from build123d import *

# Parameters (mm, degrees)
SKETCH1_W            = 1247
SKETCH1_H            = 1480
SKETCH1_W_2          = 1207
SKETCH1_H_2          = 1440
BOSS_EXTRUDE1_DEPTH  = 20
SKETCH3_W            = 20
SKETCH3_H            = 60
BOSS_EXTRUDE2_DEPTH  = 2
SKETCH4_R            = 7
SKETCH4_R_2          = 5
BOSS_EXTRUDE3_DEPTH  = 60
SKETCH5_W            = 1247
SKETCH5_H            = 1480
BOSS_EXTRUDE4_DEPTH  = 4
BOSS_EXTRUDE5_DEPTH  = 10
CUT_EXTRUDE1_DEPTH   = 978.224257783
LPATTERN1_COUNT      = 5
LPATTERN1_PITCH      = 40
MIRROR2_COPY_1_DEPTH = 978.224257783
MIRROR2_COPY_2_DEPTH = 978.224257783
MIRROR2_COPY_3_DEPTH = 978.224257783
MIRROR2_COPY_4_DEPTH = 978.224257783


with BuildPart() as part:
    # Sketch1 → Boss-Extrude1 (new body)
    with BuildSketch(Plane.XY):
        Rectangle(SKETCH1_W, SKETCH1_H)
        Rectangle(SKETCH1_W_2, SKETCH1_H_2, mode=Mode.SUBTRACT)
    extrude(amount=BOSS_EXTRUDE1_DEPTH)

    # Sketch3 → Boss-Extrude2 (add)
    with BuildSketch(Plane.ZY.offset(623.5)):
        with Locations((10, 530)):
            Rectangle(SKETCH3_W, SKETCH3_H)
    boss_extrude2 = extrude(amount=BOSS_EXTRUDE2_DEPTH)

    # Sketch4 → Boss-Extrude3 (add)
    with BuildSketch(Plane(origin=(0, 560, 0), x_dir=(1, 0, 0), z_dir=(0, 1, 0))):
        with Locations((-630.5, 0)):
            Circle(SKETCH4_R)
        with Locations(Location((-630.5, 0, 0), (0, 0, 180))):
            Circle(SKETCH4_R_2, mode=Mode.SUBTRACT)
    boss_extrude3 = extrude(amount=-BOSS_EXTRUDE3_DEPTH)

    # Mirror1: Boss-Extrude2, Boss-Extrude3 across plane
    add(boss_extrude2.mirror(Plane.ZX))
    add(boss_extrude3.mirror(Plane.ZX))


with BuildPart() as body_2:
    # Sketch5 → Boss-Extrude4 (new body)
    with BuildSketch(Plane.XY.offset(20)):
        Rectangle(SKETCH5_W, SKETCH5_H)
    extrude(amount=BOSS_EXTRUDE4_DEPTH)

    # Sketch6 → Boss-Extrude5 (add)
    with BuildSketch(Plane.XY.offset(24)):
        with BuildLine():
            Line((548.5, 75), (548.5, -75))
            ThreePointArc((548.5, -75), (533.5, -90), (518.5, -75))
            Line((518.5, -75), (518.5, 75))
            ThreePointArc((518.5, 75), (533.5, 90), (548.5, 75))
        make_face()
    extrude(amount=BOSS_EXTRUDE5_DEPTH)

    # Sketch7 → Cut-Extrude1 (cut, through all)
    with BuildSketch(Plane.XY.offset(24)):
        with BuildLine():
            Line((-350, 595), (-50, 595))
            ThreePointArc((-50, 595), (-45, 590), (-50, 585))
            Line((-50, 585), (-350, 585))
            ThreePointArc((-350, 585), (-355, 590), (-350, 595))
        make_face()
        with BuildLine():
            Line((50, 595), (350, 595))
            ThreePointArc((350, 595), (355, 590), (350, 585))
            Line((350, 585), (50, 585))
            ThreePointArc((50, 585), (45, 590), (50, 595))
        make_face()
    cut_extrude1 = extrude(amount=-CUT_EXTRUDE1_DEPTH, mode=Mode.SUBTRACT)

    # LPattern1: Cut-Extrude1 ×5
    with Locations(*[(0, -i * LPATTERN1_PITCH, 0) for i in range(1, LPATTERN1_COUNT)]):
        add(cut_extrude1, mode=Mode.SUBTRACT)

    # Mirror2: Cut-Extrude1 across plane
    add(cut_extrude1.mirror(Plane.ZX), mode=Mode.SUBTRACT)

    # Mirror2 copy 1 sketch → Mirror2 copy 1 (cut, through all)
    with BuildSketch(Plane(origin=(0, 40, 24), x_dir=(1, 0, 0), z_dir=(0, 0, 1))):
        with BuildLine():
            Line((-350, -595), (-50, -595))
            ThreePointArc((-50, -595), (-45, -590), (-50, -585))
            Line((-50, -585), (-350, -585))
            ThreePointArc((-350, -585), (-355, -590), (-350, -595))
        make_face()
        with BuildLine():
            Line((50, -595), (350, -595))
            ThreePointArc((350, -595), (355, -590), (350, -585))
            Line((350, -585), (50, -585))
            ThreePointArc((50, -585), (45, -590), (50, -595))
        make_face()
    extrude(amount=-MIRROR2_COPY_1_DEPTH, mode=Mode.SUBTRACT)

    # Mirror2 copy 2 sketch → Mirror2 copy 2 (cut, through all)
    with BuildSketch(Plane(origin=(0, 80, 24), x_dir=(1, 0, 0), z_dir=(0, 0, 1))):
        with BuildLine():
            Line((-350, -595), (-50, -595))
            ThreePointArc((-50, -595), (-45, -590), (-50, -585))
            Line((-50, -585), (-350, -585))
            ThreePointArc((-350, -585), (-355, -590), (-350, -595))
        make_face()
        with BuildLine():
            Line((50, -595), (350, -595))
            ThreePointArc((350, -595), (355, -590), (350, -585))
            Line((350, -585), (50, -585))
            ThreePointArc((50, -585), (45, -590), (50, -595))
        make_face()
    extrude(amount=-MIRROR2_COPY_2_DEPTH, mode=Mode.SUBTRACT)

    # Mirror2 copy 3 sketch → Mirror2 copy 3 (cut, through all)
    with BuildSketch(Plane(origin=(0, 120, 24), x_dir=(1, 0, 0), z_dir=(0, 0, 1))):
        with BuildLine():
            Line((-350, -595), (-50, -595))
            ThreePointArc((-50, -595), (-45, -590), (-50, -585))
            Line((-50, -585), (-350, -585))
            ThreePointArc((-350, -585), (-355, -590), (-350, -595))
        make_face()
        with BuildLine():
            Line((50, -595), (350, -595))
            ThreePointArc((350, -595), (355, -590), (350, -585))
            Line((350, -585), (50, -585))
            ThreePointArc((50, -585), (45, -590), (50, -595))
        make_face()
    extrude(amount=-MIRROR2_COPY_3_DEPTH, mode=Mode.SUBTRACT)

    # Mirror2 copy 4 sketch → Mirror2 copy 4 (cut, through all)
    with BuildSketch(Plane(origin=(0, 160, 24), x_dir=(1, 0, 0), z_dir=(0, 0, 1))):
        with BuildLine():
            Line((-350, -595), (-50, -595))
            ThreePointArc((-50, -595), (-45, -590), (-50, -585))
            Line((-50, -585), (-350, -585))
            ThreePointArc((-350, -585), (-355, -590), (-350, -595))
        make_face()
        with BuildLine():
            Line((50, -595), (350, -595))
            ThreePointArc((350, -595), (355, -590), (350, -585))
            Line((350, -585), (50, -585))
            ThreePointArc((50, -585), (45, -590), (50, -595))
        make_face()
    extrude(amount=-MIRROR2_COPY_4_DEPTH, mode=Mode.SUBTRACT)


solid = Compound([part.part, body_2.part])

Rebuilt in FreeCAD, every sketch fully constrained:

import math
import FreeCAD as App
import Part
import Sketcher
from FreeCAD import Vector
Q = App.Units.Quantity

doc = App.newDocument("Part")
params = doc.addObject("Spreadsheet::Sheet", "Params")
for row, (alias, value) in enumerate([
    ("sketch1_width", "1247 mm"),
    ("sketch1_width2", "1207 mm"),
    ("sketch1_height", "1480 mm"),
    ("sketch1_height2", "1440 mm"),
    ("pad1_length", "20 mm"),
    ("sketch2_width", "60 mm"),
    ("sketch2_height", "20 mm"),
    ("pad2_length", "2 mm"),
    ("sketch3_diameter", "14 mm"),
    ("sketch3_diameter2", "10 mm"),
    ("pad3_length", "60 mm"),
    ("sketch4_width", "1247 mm"),
    ("sketch4_height", "1480 mm"),
    ("pad4_length", "4 mm"),
    ("sketch5_radius", "15 mm"),
    ("sketch5_height", "150 mm"),
    ("pad5_length", "10 mm"),
    ("sketch6_radius", "5 mm"),
    ("sketch6_width", "300 mm"),
    ("linearpattern_pitch", "40 mm"),
    ("sketch7_radius", "5 mm"),
    ("sketch7_width", "300 mm"),
    ("sketch8_radius", "5 mm"),
    ("sketch8_width", "300 mm"),
    ("sketch9_radius", "5 mm"),
    ("sketch9_width", "300 mm"),
    ("sketch10_radius", "5 mm"),
    ("sketch10_width", "300 mm"),
], start=1):
    params.set(f"A{row}", alias)
    params.set(f"B{row}", "=" + value)
    params.setAlias(f"B{row}", alias)

body = doc.addObject("PartDesign::Body", "Body")

# Sketch on XY plane
sketch1 = doc.addObject("Sketcher::SketchObject", "Sketch")
body.addObject(sketch1)
sketch1.AttachmentSupport = (doc.XY_Plane, [""])
sketch1.MapMode = "FlatFace"
sketch1.addGeometry(Part.LineSegment(Vector(-623.5, 740, 0), Vector(-623.5, -740, 0)), False)
sketch1.addGeometry(Part.LineSegment(Vector(-623.5, -740, 0), Vector(623.5, -740, 0)), False)
sketch1.addGeometry(Part.LineSegment(Vector(623.5, -740, 0), Vector(623.5, 740, 0)), False)
sketch1.addGeometry(Part.LineSegment(Vector(623.5, 740, 0), Vector(-623.5, 740, 0)), False)
sketch1.addGeometry(Part.LineSegment(Vector(603.5, -720, 0), Vector(-603.5, -720, 0)), False)
sketch1.addGeometry(Part.LineSegment(Vector(-603.5, -720, 0), Vector(-603.5, 720, 0)), False)
sketch1.addGeometry(Part.LineSegment(Vector(-603.5, 720, 0), Vector(603.5, 720, 0)), False)
sketch1.addGeometry(Part.LineSegment(Vector(603.5, 720, 0), Vector(603.5, -720, 0)), False)
sketch1.addConstraint(Sketcher.Constraint("Coincident", 0, 2, 1, 1))
sketch1.addConstraint(Sketcher.Constraint("Coincident", 1, 2, 2, 1))
sketch1.addConstraint(Sketcher.Constraint("Coincident", 2, 2, 3, 1))
sketch1.addConstraint(Sketcher.Constraint("Coincident", 3, 2, 0, 1))
sketch1.addConstraint(Sketcher.Constraint("Coincident", 4, 2, 5, 1))
sketch1.addConstraint(Sketcher.Constraint("Coincident", 5, 2, 6, 1))
sketch1.addConstraint(Sketcher.Constraint("Coincident", 6, 2, 7, 1))
sketch1.addConstraint(Sketcher.Constraint("Coincident", 7, 2, 4, 1))
sketch1.addConstraint(Sketcher.Constraint("Vertical", 0))
sketch1.addConstraint(Sketcher.Constraint("Horizontal", 1))
sketch1.addConstraint(Sketcher.Constraint("Vertical", 2))
sketch1.addConstraint(Sketcher.Constraint("Horizontal", 3))
sketch1.addConstraint(Sketcher.Constraint("Horizontal", 4))
sketch1.addConstraint(Sketcher.Constraint("Vertical", 5))
sketch1.addConstraint(Sketcher.Constraint("Horizontal", 6))
sketch1.addConstraint(Sketcher.Constraint("Vertical", 7))
sketch1.addConstraint(Sketcher.Constraint("Symmetric", 0, 2, 2, 2, -1, 1))
sketch1.addConstraint(Sketcher.Constraint("Symmetric", 4, 2, 6, 2, -1, 1))
sketch1.addConstraint(Sketcher.Constraint("DistanceX", 1, 1, 1, 2, Q("1247 mm")))
sketch1.addConstraint(Sketcher.Constraint("DistanceX", 4, 2, 4, 1, Q("1207 mm")))
sketch1.addConstraint(Sketcher.Constraint("DistanceY", 0, 2, 0, 1, Q("1480 mm")))
sketch1.addConstraint(Sketcher.Constraint("DistanceY", 5, 1, 5, 2, Q("1440 mm")))
sketch1.setExpression("Constraints[18]", "Params.sketch1_width")
sketch1.setExpression("Constraints[19]", "Params.sketch1_width2")
sketch1.setExpression("Constraints[20]", "Params.sketch1_height")
sketch1.setExpression("Constraints[21]", "Params.sketch1_height2")
pad1 = doc.addObject("PartDesign::Pad", "Pad")
body.addObject(pad1)
pad1.Profile = sketch1
pad1.setExpression("Length", "Params.pad1_length")

# Sketch on YZ plane
sketch2 = doc.addObject("Sketcher::SketchObject", "Sketch001")
body.addObject(sketch2)
sketch2.AttachmentSupport = (doc.YZ_Plane, [""])
sketch2.MapMode = "FlatFace"
sketch2.AttachmentOffset = App.Placement(Vector(0, 0, -623.5), App.Rotation())
sketch2.addGeometry(Part.LineSegment(Vector(560, 0, 0), Vector(500, 0, 0)), False)
sketch2.addGeometry(Part.LineSegment(Vector(500, 0, 0), Vector(500, 20, 0)), False)
sketch2.addGeometry(Part.LineSegment(Vector(500, 20, 0), Vector(560, 20, 0)), False)
sketch2.addGeometry(Part.LineSegment(Vector(560, 20, 0), Vector(560, 0, 0)), False)
sketch2.addConstraint(Sketcher.Constraint("Coincident", 0, 2, 1, 1))
sketch2.addConstraint(Sketcher.Constraint("Coincident", 1, 2, 2, 1))
sketch2.addConstraint(Sketcher.Constraint("Coincident", 2, 2, 3, 1))
sketch2.addConstraint(Sketcher.Constraint("Coincident", 3, 2, 0, 1))
sketch2.addConstraint(Sketcher.Constraint("Horizontal", 0))
sketch2.addConstraint(Sketcher.Constraint("Vertical", 1))
sketch2.addConstraint(Sketcher.Constraint("Horizontal", 2))
sketch2.addConstraint(Sketcher.Constraint("Vertical", 3))
sketch2.addConstraint(Sketcher.Constraint("PointOnObject", 0, 2, -1))
sketch2.addConstraint(Sketcher.Constraint("DistanceX", 0, 2, 0, 1, Q("60 mm")))
sketch2.addConstraint(Sketcher.Constraint("DistanceY", 1, 1, 1, 2, Q("20 mm")))
sketch2.addConstraint(Sketcher.Constraint("DistanceX", -1, 1, 0, 2, Q("500 mm")))
sketch2.setExpression("Constraints[9]", "Params.sketch2_width")
sketch2.setExpression("Constraints[10]", "Params.sketch2_height")
pad2 = doc.addObject("PartDesign::Pad", "Pad001")
body.addObject(pad2)
pad2.Profile = sketch2
pad2.setExpression("Length", "Params.pad2_length")
pad2.Reversed = True

# Sketch on XZ plane
sketch3 = doc.addObject("Sketcher::SketchObject", "Sketch002")
body.addObject(sketch3)
sketch3.AttachmentSupport = (doc.XZ_Plane, [""])
sketch3.MapMode = "FlatFace"
sketch3.AttachmentOffset = App.Placement(Vector(0, 0, -560), App.Rotation())
sketch3.addGeometry(Part.Circle(Vector(-630.5, 0, 0), Vector(0, 0, 1), 7), False)
sketch3.addGeometry(Part.Circle(Vector(-630.5, 0, 0), Vector(0, 0, 1), 5), False)
sketch3.addConstraint(Sketcher.Constraint("Coincident", 1, 3, 0, 3))
sketch3.addConstraint(Sketcher.Constraint("PointOnObject", 0, 3, -1))
sketch3.addConstraint(Sketcher.Constraint("Diameter", 0, Q("14 mm")))
sketch3.addConstraint(Sketcher.Constraint("Diameter", 1, Q("10 mm")))
sketch3.addConstraint(Sketcher.Constraint("DistanceX", 0, 3, -1, 1, Q("630.5 mm")))
sketch3.setExpression("Constraints[2]", "Params.sketch3_diameter")
sketch3.setExpression("Constraints[3]", "Params.sketch3_diameter2")
pad3 = doc.addObject("PartDesign::Pad", "Pad002")
body.addObject(pad3)
pad3.Profile = sketch3
pad3.setExpression("Length", "Params.pad3_length")
doc.recompute()

mirrored = doc.addObject("PartDesign::Mirrored", "Mirrored")
body.addObject(mirrored)
mirrored.Originals = [pad2, pad3]
mirrored.MirrorPlane = (doc.XZ_Plane, [""])
body.Tip = mirrored
body2 = doc.addObject("PartDesign::Body", "Body001")

# Sketch on XY plane
sketch4 = doc.addObject("Sketcher::SketchObject", "Sketch003")
body2.addObject(sketch4)
sketch4.AttachmentSupport = (doc.getObject("XY_Plane001"), [""])
sketch4.MapMode = "FlatFace"
sketch4.AttachmentOffset = App.Placement(Vector(0, 0, 20), App.Rotation())
sketch4.addGeometry(Part.LineSegment(Vector(-623.5, 740, 0), Vector(-623.5, -740, 0)), False)
sketch4.addGeometry(Part.LineSegment(Vector(-623.5, -740, 0), Vector(623.5, -740, 0)), False)
sketch4.addGeometry(Part.LineSegment(Vector(623.5, -740, 0), Vector(623.5, 740, 0)), False)
sketch4.addGeometry(Part.LineSegment(Vector(623.5, 740, 0), Vector(-623.5, 740, 0)), False)
sketch4.addConstraint(Sketcher.Constraint("Coincident", 0, 2, 1, 1))
sketch4.addConstraint(Sketcher.Constraint("Coincident", 1, 2, 2, 1))
sketch4.addConstraint(Sketcher.Constraint("Coincident", 2, 2, 3, 1))
sketch4.addConstraint(Sketcher.Constraint("Coincident", 3, 2, 0, 1))
sketch4.addConstraint(Sketcher.Constraint("Vertical", 0))
sketch4.addConstraint(Sketcher.Constraint("Horizontal", 1))
sketch4.addConstraint(Sketcher.Constraint("Vertical", 2))
sketch4.addConstraint(Sketcher.Constraint("Horizontal", 3))
sketch4.addConstraint(Sketcher.Constraint("Symmetric", 0, 2, 2, 2, -1, 1))
sketch4.addConstraint(Sketcher.Constraint("DistanceX", 1, 1, 1, 2, Q("1247 mm")))
sketch4.addConstraint(Sketcher.Constraint("DistanceY", 0, 2, 0, 1, Q("1480 mm")))
sketch4.setExpression("Constraints[9]", "Params.sketch4_width")
sketch4.setExpression("Constraints[10]", "Params.sketch4_height")
pad4 = doc.addObject("PartDesign::Pad", "Pad003")
body2.addObject(pad4)
pad4.Profile = sketch4
pad4.setExpression("Length", "Params.pad4_length")

# Sketch on XY plane
sketch5 = doc.addObject("Sketcher::SketchObject", "Sketch004")
body2.addObject(sketch5)
sketch5.AttachmentSupport = (doc.getObject("XY_Plane001"), [""])
sketch5.MapMode = "FlatFace"
sketch5.AttachmentOffset = App.Placement(Vector(0, 0, 24), App.Rotation())
sketch5.addGeometry(Part.LineSegment(Vector(548.5, -75, 0), Vector(548.5, 75, 0)), False)
sketch5.addGeometry(Part.ArcOfCircle(Part.Circle(Vector(533.5, 75, 0), Vector(0, 0, 1), 15), math.radians(0), math.radians(180)), False)
sketch5.addGeometry(Part.LineSegment(Vector(518.5, 75, 0), Vector(518.5, -75, 0)), False)
sketch5.addGeometry(Part.ArcOfCircle(Part.Circle(Vector(533.5, -75, 0), Vector(0, 0, 1), 15), math.radians(180), math.radians(360)), False)
sketch5.addConstraint(Sketcher.Constraint("Tangent", 0, 2, 1, 1))
sketch5.addConstraint(Sketcher.Constraint("Tangent", 1, 2, 2, 1))
sketch5.addConstraint(Sketcher.Constraint("Tangent", 2, 2, 3, 1))
sketch5.addConstraint(Sketcher.Constraint("Tangent", 3, 2, 0, 1))
sketch5.addConstraint(Sketcher.Constraint("Vertical", 0))
sketch5.addConstraint(Sketcher.Constraint("Vertical", 2))
sketch5.addConstraint(Sketcher.Constraint("Radius", 1, Q("15 mm")))
sketch5.addConstraint(Sketcher.Constraint("DistanceY", 0, 1, 0, 2, Q("150 mm")))
sketch5.addConstraint(Sketcher.Constraint("DistanceY", -1, 1, 1, 3, Q("75 mm")))
sketch5.addConstraint(Sketcher.Constraint("DistanceX", -1, 1, 1, 3, Q("533.5 mm")))
sketch5.setExpression("Constraints[6]", "Params.sketch5_radius")
sketch5.setExpression("Constraints[7]", "Params.sketch5_height")
pad5 = doc.addObject("PartDesign::Pad", "Pad004")
body2.addObject(pad5)
pad5.Profile = sketch5
pad5.setExpression("Length", "Params.pad5_length")

# Sketch on XY plane
sketch6 = doc.addObject("Sketcher::SketchObject", "Sketch005")
body2.addObject(sketch6)
sketch6.AttachmentSupport = (doc.getObject("XY_Plane001"), [""])
sketch6.MapMode = "FlatFace"
sketch6.AttachmentOffset = App.Placement(Vector(0, 0, 24), App.Rotation())
sketch6.addGeometry(Part.LineSegment(Vector(-50, 595, 0), Vector(-350, 595, 0)), False)
sketch6.addGeometry(Part.ArcOfCircle(Part.Circle(Vector(-350, 590, 0), Vector(0, 0, 1), 5), math.radians(90), math.radians(270)), False)
sketch6.addGeometry(Part.LineSegment(Vector(-350, 585, 0), Vector(-50, 585, 0)), False)
sketch6.addGeometry(Part.ArcOfCircle(Part.Circle(Vector(-50, 590, 0), Vector(0, 0, 1), 5), math.radians(-90), math.radians(90)), False)
sketch6.addGeometry(Part.LineSegment(Vector(350, 595, 0), Vector(50, 595, 0)), False)
sketch6.addGeometry(Part.ArcOfCircle(Part.Circle(Vector(50, 590, 0), Vector(0, 0, 1), 5), math.radians(90), math.radians(270)), False)
sketch6.addGeometry(Part.LineSegment(Vector(50, 585, 0), Vector(350, 585, 0)), False)
sketch6.addGeometry(Part.ArcOfCircle(Part.Circle(Vector(350, 590, 0), Vector(0, 0, 1), 5), math.radians(-90), math.radians(90)), False)
sketch6.addConstraint(Sketcher.Constraint("Tangent", 0, 2, 1, 1))
sketch6.addConstraint(Sketcher.Constraint("Tangent", 1, 2, 2, 1))
sketch6.addConstraint(Sketcher.Constraint("Tangent", 2, 2, 3, 1))
sketch6.addConstraint(Sketcher.Constraint("Tangent", 3, 2, 0, 1))
sketch6.addConstraint(Sketcher.Constraint("Tangent", 4, 2, 5, 1))
sketch6.addConstraint(Sketcher.Constraint("Tangent", 5, 2, 6, 1))
sketch6.addConstraint(Sketcher.Constraint("Tangent", 6, 2, 7, 1))
sketch6.addConstraint(Sketcher.Constraint("Tangent", 7, 2, 4, 1))
sketch6.addConstraint(Sketcher.Constraint("Horizontal", 0))
sketch6.addConstraint(Sketcher.Constraint("Horizontal", 2))
sketch6.addConstraint(Sketcher.Constraint("Horizontal", 4))
sketch6.addConstraint(Sketcher.Constraint("Horizontal", 6))
sketch6.addConstraint(Sketcher.Constraint("Equal", 3, 5))
sketch6.addConstraint(Sketcher.Constraint("Symmetric", 3, 3, 5, 3, -2))
sketch6.addConstraint(Sketcher.Constraint("Equal", 2, 4))
sketch6.addConstraint(Sketcher.Constraint("Radius", 1, Q("5 mm")))
sketch6.addConstraint(Sketcher.Constraint("DistanceX", 0, 2, 0, 1, Q("300 mm")))
sketch6.addConstraint(Sketcher.Constraint("DistanceX", 1, 3, -1, 1, Q("350 mm")))
sketch6.addConstraint(Sketcher.Constraint("DistanceY", -1, 1, 1, 3, Q("590 mm")))
sketch6.setExpression("Constraints[15]", "Params.sketch6_radius")
sketch6.setExpression("Constraints[16]", "Params.sketch6_width")
pocket1 = doc.addObject("PartDesign::Pocket", "Pocket")
body2.addObject(pocket1)
pocket1.Profile = sketch6
pocket1.Type = "ThroughAll"
doc.recompute()

linearpattern = doc.addObject("PartDesign::LinearPattern", "LinearPattern")
body2.addObject(linearpattern)
linearpattern.Originals = [pocket1]
linearpattern.Direction = (doc.getObject("Y_Axis001"), [""])
linearpattern.Mode = "offset"
linearpattern.setExpression("Offset", "Params.linearpattern_pitch")
linearpattern.Occurrences = 5
linearpattern.Reversed = True
body2.Tip = linearpattern
doc.recompute()

mirrored2 = doc.addObject("PartDesign::Mirrored", "Mirrored001")
body2.addObject(mirrored2)
mirrored2.Originals = [pocket1]
mirrored2.MirrorPlane = (doc.getObject("XZ_Plane001"), [""])
body2.Tip = mirrored2

# Sketch on XY plane
sketch7 = doc.addObject("Sketcher::SketchObject", "Sketch006")
body2.addObject(sketch7)
sketch7.AttachmentSupport = (doc.getObject("XY_Plane001"), [""])
sketch7.MapMode = "FlatFace"
sketch7.AttachmentOffset = App.Placement(Vector(0, 0, 24), App.Rotation())
sketch7.addGeometry(Part.LineSegment(Vector(-350, -555, 0), Vector(-50, -555, 0)), False)
sketch7.addGeometry(Part.ArcOfCircle(Part.Circle(Vector(-50, -550, 0), Vector(0, 0, 1), 5), math.radians(-90), math.radians(90)), False)
sketch7.addGeometry(Part.LineSegment(Vector(-50, -545, 0), Vector(-350, -545, 0)), False)
sketch7.addGeometry(Part.ArcOfCircle(Part.Circle(Vector(-350, -550, 0), Vector(0, 0, 1), 5), math.radians(90), math.radians(270)), False)
sketch7.addGeometry(Part.LineSegment(Vector(50, -555, 0), Vector(350, -555, 0)), False)
sketch7.addGeometry(Part.ArcOfCircle(Part.Circle(Vector(350, -550, 0), Vector(0, 0, 1), 5), math.radians(-90), math.radians(90)), False)
sketch7.addGeometry(Part.LineSegment(Vector(350, -545, 0), Vector(50, -545, 0)), False)
sketch7.addGeometry(Part.ArcOfCircle(Part.Circle(Vector(50, -550, 0), Vector(0, 0, 1), 5), math.radians(90), math.radians(270)), False)
sketch7.addConstraint(Sketcher.Constraint("Tangent", 0, 2, 1, 1))
sketch7.addConstraint(Sketcher.Constraint("Tangent", 1, 2, 2, 1))
sketch7.addConstraint(Sketcher.Constraint("Tangent", 2, 2, 3, 1))
sketch7.addConstraint(Sketcher.Constraint("Tangent", 3, 2, 0, 1))
sketch7.addConstraint(Sketcher.Constraint("Tangent", 4, 2, 5, 1))
sketch7.addConstraint(Sketcher.Constraint("Tangent", 5, 2, 6, 1))
sketch7.addConstraint(Sketcher.Constraint("Tangent", 6, 2, 7, 1))
sketch7.addConstraint(Sketcher.Constraint("Tangent", 7, 2, 4, 1))
sketch7.addConstraint(Sketcher.Constraint("Horizontal", 0))
sketch7.addConstraint(Sketcher.Constraint("Horizontal", 2))
sketch7.addConstraint(Sketcher.Constraint("Horizontal", 4))
sketch7.addConstraint(Sketcher.Constraint("Horizontal", 6))
sketch7.addConstraint(Sketcher.Constraint("Equal", 3, 5))
sketch7.addConstraint(Sketcher.Constraint("Symmetric", 3, 3, 5, 3, -2))
sketch7.addConstraint(Sketcher.Constraint("Equal", 2, 4))
sketch7.addConstraint(Sketcher.Constraint("Radius", 1, Q("5 mm")))
sketch7.addConstraint(Sketcher.Constraint("DistanceX", 0, 1, 0, 2, Q("300 mm")))
sketch7.addConstraint(Sketcher.Constraint("DistanceX", 1, 3, -1, 1, Q("50 mm")))
sketch7.addConstraint(Sketcher.Constraint("DistanceY", 1, 3, -1, 1, Q("550 mm")))
sketch7.setExpression("Constraints[15]", "Params.sketch7_radius")
sketch7.setExpression("Constraints[16]", "Params.sketch7_width")
pocket2 = doc.addObject("PartDesign::Pocket", "Pocket001")
body2.addObject(pocket2)
pocket2.Profile = sketch7
pocket2.Type = "ThroughAll"

# Sketch on XY plane
sketch8 = doc.addObject("Sketcher::SketchObject", "Sketch007")
body2.addObject(sketch8)
sketch8.AttachmentSupport = (doc.getObject("XY_Plane001"), [""])
sketch8.MapMode = "FlatFace"
sketch8.AttachmentOffset = App.Placement(Vector(0, 0, 24), App.Rotation())
sketch8.addGeometry(Part.LineSegment(Vector(-350, -515, 0), Vector(-50, -515, 0)), False)
sketch8.addGeometry(Part.ArcOfCircle(Part.Circle(Vector(-50, -510, 0), Vector(0, 0, 1), 5), math.radians(-90), math.radians(90)), False)
sketch8.addGeometry(Part.LineSegment(Vector(-50, -505, 0), Vector(-350, -505, 0)), False)
sketch8.addGeometry(Part.ArcOfCircle(Part.Circle(Vector(-350, -510, 0), Vector(0, 0, 1), 5), math.radians(90), math.radians(270)), False)
sketch8.addGeometry(Part.LineSegment(Vector(50, -515, 0), Vector(350, -515, 0)), False)
sketch8.addGeometry(Part.ArcOfCircle(Part.Circle(Vector(350, -510, 0), Vector(0, 0, 1), 5), math.radians(-90), math.radians(90)), False)
sketch8.addGeometry(Part.LineSegment(Vector(350, -505, 0), Vector(50, -505, 0)), False)
sketch8.addGeometry(Part.ArcOfCircle(Part.Circle(Vector(50, -510, 0), Vector(0, 0, 1), 5), math.radians(90), math.radians(270)), False)
sketch8.addConstraint(Sketcher.Constraint("Tangent", 0, 2, 1, 1))
sketch8.addConstraint(Sketcher.Constraint("Tangent", 1, 2, 2, 1))
sketch8.addConstraint(Sketcher.Constraint("Tangent", 2, 2, 3, 1))
sketch8.addConstraint(Sketcher.Constraint("Tangent", 3, 2, 0, 1))
sketch8.addConstraint(Sketcher.Constraint("Tangent", 4, 2, 5, 1))
sketch8.addConstraint(Sketcher.Constraint("Tangent", 5, 2, 6, 1))
sketch8.addConstraint(Sketcher.Constraint("Tangent", 6, 2, 7, 1))
sketch8.addConstraint(Sketcher.Constraint("Tangent", 7, 2, 4, 1))
sketch8.addConstraint(Sketcher.Constraint("Horizontal", 0))
sketch8.addConstraint(Sketcher.Constraint("Horizontal", 2))
sketch8.addConstraint(Sketcher.Constraint("Horizontal", 4))
sketch8.addConstraint(Sketcher.Constraint("Horizontal", 6))
sketch8.addConstraint(Sketcher.Constraint("Equal", 3, 5))
sketch8.addConstraint(Sketcher.Constraint("Symmetric", 3, 3, 5, 3, -2))
sketch8.addConstraint(Sketcher.Constraint("Equal", 2, 4))
sketch8.addConstraint(Sketcher.Constraint("Radius", 1, Q("5 mm")))
sketch8.addConstraint(Sketcher.Constraint("DistanceX", 0, 1, 0, 2, Q("300 mm")))
sketch8.addConstraint(Sketcher.Constraint("DistanceX", 1, 3, -1, 1, Q("50 mm")))
sketch8.addConstraint(Sketcher.Constraint("DistanceY", 1, 3, -1, 1, Q("510 mm")))
sketch8.setExpression("Constraints[15]", "Params.sketch8_radius")
sketch8.setExpression("Constraints[16]", "Params.sketch8_width")
pocket3 = doc.addObject("PartDesign::Pocket", "Pocket002")
body2.addObject(pocket3)
pocket3.Profile = sketch8
pocket3.Type = "ThroughAll"

# Sketch on XY plane
sketch9 = doc.addObject("Sketcher::SketchObject", "Sketch008")
body2.addObject(sketch9)
sketch9.AttachmentSupport = (doc.getObject("XY_Plane001"), [""])
sketch9.MapMode = "FlatFace"
sketch9.AttachmentOffset = App.Placement(Vector(0, 0, 24), App.Rotation())
sketch9.addGeometry(Part.LineSegment(Vector(-350, -475, 0), Vector(-50, -475, 0)), False)
sketch9.addGeometry(Part.ArcOfCircle(Part.Circle(Vector(-50, -470, 0), Vector(0, 0, 1), 5), math.radians(-90), math.radians(90)), False)
sketch9.addGeometry(Part.LineSegment(Vector(-50, -465, 0), Vector(-350, -465, 0)), False)
sketch9.addGeometry(Part.ArcOfCircle(Part.Circle(Vector(-350, -470, 0), Vector(0, 0, 1), 5), math.radians(90), math.radians(270)), False)
sketch9.addGeometry(Part.LineSegment(Vector(50, -475, 0), Vector(350, -475, 0)), False)
sketch9.addGeometry(Part.ArcOfCircle(Part.Circle(Vector(350, -470, 0), Vector(0, 0, 1), 5), math.radians(-90), math.radians(90)), False)
sketch9.addGeometry(Part.LineSegment(Vector(350, -465, 0), Vector(50, -465, 0)), False)
sketch9.addGeometry(Part.ArcOfCircle(Part.Circle(Vector(50, -470, 0), Vector(0, 0, 1), 5), math.radians(90), math.radians(270)), False)
sketch9.addConstraint(Sketcher.Constraint("Tangent", 0, 2, 1, 1))
sketch9.addConstraint(Sketcher.Constraint("Tangent", 1, 2, 2, 1))
sketch9.addConstraint(Sketcher.Constraint("Tangent", 2, 2, 3, 1))
sketch9.addConstraint(Sketcher.Constraint("Tangent", 3, 2, 0, 1))
sketch9.addConstraint(Sketcher.Constraint("Tangent", 4, 2, 5, 1))
sketch9.addConstraint(Sketcher.Constraint("Tangent", 5, 2, 6, 1))
sketch9.addConstraint(Sketcher.Constraint("Tangent", 6, 2, 7, 1))
sketch9.addConstraint(Sketcher.Constraint("Tangent", 7, 2, 4, 1))
sketch9.addConstraint(Sketcher.Constraint("Horizontal", 0))
sketch9.addConstraint(Sketcher.Constraint("Horizontal", 2))
sketch9.addConstraint(Sketcher.Constraint("Horizontal", 4))
sketch9.addConstraint(Sketcher.Constraint("Horizontal", 6))
sketch9.addConstraint(Sketcher.Constraint("Equal", 3, 5))
sketch9.addConstraint(Sketcher.Constraint("Symmetric", 3, 3, 5, 3, -2))
sketch9.addConstraint(Sketcher.Constraint("Equal", 2, 4))
sketch9.addConstraint(Sketcher.Constraint("Radius", 1, Q("5 mm")))
sketch9.addConstraint(Sketcher.Constraint("DistanceX", 0, 1, 0, 2, Q("300 mm")))
sketch9.addConstraint(Sketcher.Constraint("DistanceX", 1, 3, -1, 1, Q("50 mm")))
sketch9.addConstraint(Sketcher.Constraint("DistanceY", 1, 3, -1, 1, Q("470 mm")))
sketch9.setExpression("Constraints[15]", "Params.sketch9_radius")
sketch9.setExpression("Constraints[16]", "Params.sketch9_width")
pocket4 = doc.addObject("PartDesign::Pocket", "Pocket003")
body2.addObject(pocket4)
pocket4.Profile = sketch9
pocket4.Type = "ThroughAll"

# Sketch on XY plane
sketch10 = doc.addObject("Sketcher::SketchObject", "Sketch009")
body2.addObject(sketch10)
sketch10.AttachmentSupport = (doc.getObject("XY_Plane001"), [""])
sketch10.MapMode = "FlatFace"
sketch10.AttachmentOffset = App.Placement(Vector(0, 0, 24), App.Rotation())
sketch10.addGeometry(Part.LineSegment(Vector(-350, -435, 0), Vector(-50, -435, 0)), False)
sketch10.addGeometry(Part.ArcOfCircle(Part.Circle(Vector(-50, -430, 0), Vector(0, 0, 1), 5), math.radians(-90), math.radians(90)), False)
sketch10.addGeometry(Part.LineSegment(Vector(-50, -425, 0), Vector(-350, -425, 0)), False)
sketch10.addGeometry(Part.ArcOfCircle(Part.Circle(Vector(-350, -430, 0), Vector(0, 0, 1), 5), math.radians(90), math.radians(270)), False)
sketch10.addGeometry(Part.LineSegment(Vector(50, -435, 0), Vector(350, -435, 0)), False)
sketch10.addGeometry(Part.ArcOfCircle(Part.Circle(Vector(350, -430, 0), Vector(0, 0, 1), 5), math.radians(-90), math.radians(90)), False)
sketch10.addGeometry(Part.LineSegment(Vector(350, -425, 0), Vector(50, -425, 0)), False)
sketch10.addGeometry(Part.ArcOfCircle(Part.Circle(Vector(50, -430, 0), Vector(0, 0, 1), 5), math.radians(90), math.radians(270)), False)
sketch10.addConstraint(Sketcher.Constraint("Tangent", 0, 2, 1, 1))
sketch10.addConstraint(Sketcher.Constraint("Tangent", 1, 2, 2, 1))
sketch10.addConstraint(Sketcher.Constraint("Tangent", 2, 2, 3, 1))
sketch10.addConstraint(Sketcher.Constraint("Tangent", 3, 2, 0, 1))
sketch10.addConstraint(Sketcher.Constraint("Tangent", 4, 2, 5, 1))
sketch10.addConstraint(Sketcher.Constraint("Tangent", 5, 2, 6, 1))
sketch10.addConstraint(Sketcher.Constraint("Tangent", 6, 2, 7, 1))
sketch10.addConstraint(Sketcher.Constraint("Tangent", 7, 2, 4, 1))
sketch10.addConstraint(Sketcher.Constraint("Horizontal", 0))
sketch10.addConstraint(Sketcher.Constraint("Horizontal", 2))
sketch10.addConstraint(Sketcher.Constraint("Horizontal", 4))
sketch10.addConstraint(Sketcher.Constraint("Horizontal", 6))
sketch10.addConstraint(Sketcher.Constraint("Equal", 3, 5))
sketch10.addConstraint(Sketcher.Constraint("Symmetric", 3, 3, 5, 3, -2))
sketch10.addConstraint(Sketcher.Constraint("Equal", 2, 4))
sketch10.addConstraint(Sketcher.Constraint("Radius", 1, Q("5 mm")))
sketch10.addConstraint(Sketcher.Constraint("DistanceX", 0, 1, 0, 2, Q("300 mm")))
sketch10.addConstraint(Sketcher.Constraint("DistanceX", 1, 3, -1, 1, Q("50 mm")))
sketch10.addConstraint(Sketcher.Constraint("DistanceY", 1, 3, -1, 1, Q("430 mm")))
sketch10.setExpression("Constraints[15]", "Params.sketch10_radius")
sketch10.setExpression("Constraints[16]", "Params.sketch10_width")
pocket5 = doc.addObject("PartDesign::Pocket", "Pocket004")
body2.addObject(pocket5)
pocket5.Profile = sketch10
pocket5.Type = "ThroughAll"

doc.recompute()
